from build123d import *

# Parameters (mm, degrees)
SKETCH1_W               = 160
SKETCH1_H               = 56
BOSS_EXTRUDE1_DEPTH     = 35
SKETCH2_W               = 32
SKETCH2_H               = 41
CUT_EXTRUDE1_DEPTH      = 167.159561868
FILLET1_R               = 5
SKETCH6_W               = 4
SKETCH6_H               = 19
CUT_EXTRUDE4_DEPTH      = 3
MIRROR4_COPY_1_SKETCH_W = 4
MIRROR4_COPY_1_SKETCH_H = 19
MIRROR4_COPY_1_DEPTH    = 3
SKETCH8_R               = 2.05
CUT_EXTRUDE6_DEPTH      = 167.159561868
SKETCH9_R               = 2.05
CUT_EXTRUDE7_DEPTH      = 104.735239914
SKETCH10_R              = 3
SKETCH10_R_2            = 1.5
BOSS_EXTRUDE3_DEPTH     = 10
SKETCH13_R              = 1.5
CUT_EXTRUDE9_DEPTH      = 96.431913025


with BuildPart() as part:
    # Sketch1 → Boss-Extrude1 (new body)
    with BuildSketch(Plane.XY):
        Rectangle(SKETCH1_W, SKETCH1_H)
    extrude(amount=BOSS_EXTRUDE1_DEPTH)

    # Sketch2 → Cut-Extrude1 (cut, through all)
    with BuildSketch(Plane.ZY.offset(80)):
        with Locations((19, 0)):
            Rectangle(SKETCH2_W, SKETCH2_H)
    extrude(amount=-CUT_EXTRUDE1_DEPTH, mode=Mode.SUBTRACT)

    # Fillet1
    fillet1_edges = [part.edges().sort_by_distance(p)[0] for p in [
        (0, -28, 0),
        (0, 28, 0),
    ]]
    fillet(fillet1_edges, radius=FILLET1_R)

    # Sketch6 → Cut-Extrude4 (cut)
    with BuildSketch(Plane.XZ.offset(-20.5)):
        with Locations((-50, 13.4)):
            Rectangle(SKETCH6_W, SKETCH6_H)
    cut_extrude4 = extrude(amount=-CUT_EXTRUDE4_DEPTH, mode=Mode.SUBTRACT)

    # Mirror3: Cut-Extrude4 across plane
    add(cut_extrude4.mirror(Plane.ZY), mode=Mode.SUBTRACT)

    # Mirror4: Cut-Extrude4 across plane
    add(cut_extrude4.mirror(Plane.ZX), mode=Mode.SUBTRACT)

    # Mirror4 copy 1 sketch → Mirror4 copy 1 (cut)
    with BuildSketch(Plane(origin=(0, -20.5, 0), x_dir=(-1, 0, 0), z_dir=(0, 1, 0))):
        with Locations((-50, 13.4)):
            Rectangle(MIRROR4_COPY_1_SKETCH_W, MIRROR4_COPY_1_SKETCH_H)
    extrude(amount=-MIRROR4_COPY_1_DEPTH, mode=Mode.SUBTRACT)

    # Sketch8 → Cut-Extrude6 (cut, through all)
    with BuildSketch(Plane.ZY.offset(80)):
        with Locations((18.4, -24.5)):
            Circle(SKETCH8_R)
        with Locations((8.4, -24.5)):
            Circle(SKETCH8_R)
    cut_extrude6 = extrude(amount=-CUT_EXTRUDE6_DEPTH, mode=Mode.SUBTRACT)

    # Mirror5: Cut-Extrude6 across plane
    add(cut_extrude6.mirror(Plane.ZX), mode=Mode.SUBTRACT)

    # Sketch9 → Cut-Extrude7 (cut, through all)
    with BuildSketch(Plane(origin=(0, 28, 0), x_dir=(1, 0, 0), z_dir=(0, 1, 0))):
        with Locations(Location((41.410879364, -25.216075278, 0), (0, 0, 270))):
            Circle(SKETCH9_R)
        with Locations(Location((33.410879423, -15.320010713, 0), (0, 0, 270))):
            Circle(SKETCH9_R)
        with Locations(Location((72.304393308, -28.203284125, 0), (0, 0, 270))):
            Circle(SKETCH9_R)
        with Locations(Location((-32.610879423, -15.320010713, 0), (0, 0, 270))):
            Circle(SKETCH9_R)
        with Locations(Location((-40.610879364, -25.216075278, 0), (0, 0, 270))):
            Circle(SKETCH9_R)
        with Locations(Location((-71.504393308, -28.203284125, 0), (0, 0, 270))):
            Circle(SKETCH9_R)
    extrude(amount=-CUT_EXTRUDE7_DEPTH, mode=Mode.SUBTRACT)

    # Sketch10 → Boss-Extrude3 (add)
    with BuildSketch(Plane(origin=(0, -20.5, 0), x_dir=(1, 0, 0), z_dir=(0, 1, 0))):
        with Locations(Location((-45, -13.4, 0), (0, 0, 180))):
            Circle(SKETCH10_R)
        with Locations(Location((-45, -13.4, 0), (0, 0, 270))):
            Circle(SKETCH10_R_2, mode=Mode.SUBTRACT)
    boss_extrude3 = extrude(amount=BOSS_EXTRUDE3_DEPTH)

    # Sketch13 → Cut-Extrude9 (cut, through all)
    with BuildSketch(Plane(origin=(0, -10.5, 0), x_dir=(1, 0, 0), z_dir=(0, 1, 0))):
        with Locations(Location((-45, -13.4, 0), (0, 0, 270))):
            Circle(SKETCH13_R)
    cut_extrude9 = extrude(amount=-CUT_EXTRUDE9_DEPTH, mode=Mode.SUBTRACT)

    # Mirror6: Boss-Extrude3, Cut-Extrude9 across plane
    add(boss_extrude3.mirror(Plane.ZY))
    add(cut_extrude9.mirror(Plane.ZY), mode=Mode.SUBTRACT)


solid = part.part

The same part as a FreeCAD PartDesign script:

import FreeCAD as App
import Part
import Sketcher

V = App.Vector
Q = App.Units.Quantity


def edges_at(feature, points):
    """Names of the edges that pass closest to the given points."""
    edges = feature.Shape.Edges
    near = lambda p: min(range(len(edges)), key=lambda i: edges[i].distToShape(Part.Vertex(*p))[0])
    return sorted({f"Edge{near(p) + 1}" for p in points})

doc = App.newDocument("Part")
body = doc.addObject("PartDesign::Body", "Body")

sketch1 = body.newObject("Sketcher::SketchObject", "Sketch")
sketch1.AttachmentSupport = (doc.getObject("XY_Plane"), [""])
sketch1.MapMode = "FlatFace"
sketch1.addGeometry(Part.LineSegment(V(-80, 28, 0), V(-80, -28, 0)), False)
sketch1.addGeometry(Part.LineSegment(V(-80, -28, 0), V(80, -28, 0)), False)
sketch1.addGeometry(Part.LineSegment(V(80, -28, 0), V(80, 28, 0)), False)
sketch1.addGeometry(Part.LineSegment(V(80, 28, 0), V(-80, 28, 0)), False)
sketch1.addConstraint(Sketcher.Constraint("Coincident", 0, 2, 1, 1))
sketch1.addConstraint(Sketcher.Constraint("Coincident", 1, 2, 2, 1))
sketch1.addConstraint(Sketcher.Constraint("Coincident", 2, 2, 3, 1))
sketch1.addConstraint(Sketcher.Constraint("Coincident", 3, 2, 0, 1))
sketch1.addConstraint(Sketcher.Constraint("Vertical", 0))
sketch1.addConstraint(Sketcher.Constraint("Horizontal", 1))
sketch1.addConstraint(Sketcher.Constraint("Vertical", 2))
sketch1.addConstraint(Sketcher.Constraint("Horizontal", 3))
sketch1.addConstraint(Sketcher.Constraint("Symmetric", 0, 2, 2, 2, -1, 1))
sketch1.addConstraint(Sketcher.Constraint("DistanceX", 1, 1, 1, 2, Q("160 mm")))
sketch1.addConstraint(Sketcher.Constraint("DistanceY", 0, 2, 0, 1, Q("56 mm")))
pad1 = body.newObject("PartDesign::Pad", "Pad")
pad1.Profile = sketch1
pad1.Length = 35

sketch2 = body.newObject("Sketcher::SketchObject", "Sketch001")
sketch2.AttachmentSupport = (doc.getObject("YZ_Plane"), [""])
sketch2.MapMode = "FlatFace"
sketch2.AttachmentOffset = App.Placement(V(0, 0, -80), App.Rotation())
sketch2.addGeometry(Part.LineSegment(V(20.5, 3, 0), V(-20.5, 3, 0)), False)
sketch2.addGeometry(Part.LineSegment(V(-20.5, 3, 0), V(-20.5, 35, 0)), False)
sketch2.addGeometry(Part.LineSegment(V(-20.5, 35, 0), V(20.5, 35, 0)), False)
sketch2.addGeometry(Part.LineSegment(V(20.5, 35, 0), V(20.5, 3, 0)), False)
sketch2.addConstraint(Sketcher.Constraint("Coincident", 0, 2, 1, 1))
sketch2.addConstraint(Sketcher.Constraint("Coincident", 1, 2, 2, 1))
sketch2.addConstraint(Sketcher.Constraint("Coincident", 2, 2, 3, 1))
sketch2.addConstraint(Sketcher.Constraint("Coincident", 3, 2, 0, 1))
sketch2.addConstraint(Sketcher.Constraint("Horizontal", 0))
sketch2.addConstraint(Sketcher.Constraint("Vertical", 1))
sketch2.addConstraint(Sketcher.Constraint("Horizontal", 2))
sketch2.addConstraint(Sketcher.Constraint("Vertical", 3))
sketch2.addConstraint(Sketcher.Constraint("DistanceX", 0, 2, 0, 1, Q("41 mm")))
sketch2.addConstraint(Sketcher.Constraint("DistanceY", 1, 1, 1, 2, Q("32 mm")))
sketch2.addConstraint(Sketcher.Constraint("DistanceY", -1, 1, 0, 2, Q("3 mm")))
sketch2.addConstraint(Sketcher.Constraint("DistanceX", 0, 2, -1, 1, Q("20.5 mm")))
pocket1 = body.newObject("PartDesign::Pocket", "Pocket")
pocket1.Profile = sketch2
pocket1.Type = "ThroughAll"
pocket1.Reversed = True
doc.recompute()

fillet = body.newObject("PartDesign::Fillet", "Fillet")
fillet.Base = (pocket1, edges_at(pocket1, [(0, -28, 0), (0, 28, 0)]))
fillet.Radius = 5

sketch3 = body.newObject("Sketcher::SketchObject", "Sketch002")
sketch3.AttachmentSupport = (doc.getObject("XZ_Plane"), [""])
sketch3.MapMode = "FlatFace"
sketch3.AttachmentOffset = App.Placement(V(0, 0, -20.5), App.Rotation())
sketch3.addGeometry(Part.LineSegment(V(-52, 22.9, 0), V(-52, 3.9, 0)), False)
sketch3.addGeometry(Part.LineSegment(V(-52, 3.9, 0), V(-48, 3.9, 0)), False)
sketch3.addGeometry(Part.LineSegment(V(-48, 3.9, 0), V(-48, 22.9, 0)), False)
sketch3.addGeometry(Part.LineSegment(V(-48, 22.9, 0), V(-52, 22.9, 0)), False)
sketch3.addConstraint(Sketcher.Constraint("Coincident", 0, 2, 1, 1))
sketch3.addConstraint(Sketcher.Constraint("Coincident", 1, 2, 2, 1))
sketch3.addConstraint(Sketcher.Constraint("Coincident", 2, 2, 3, 1))
sketch3.addConstraint(Sketcher.Constraint("Coincident", 3, 2, 0, 1))
sketch3.addConstraint(Sketcher.Constraint("Vertical", 0))
sketch3.addConstraint(Sketcher.Constraint("Horizontal", 1))
sketch3.addConstraint(Sketcher.Constraint("Vertical", 2))
sketch3.addConstraint(Sketcher.Constraint("Horizontal", 3))
sketch3.addConstraint(Sketcher.Constraint("DistanceX", 1, 1, 1, 2, Q("4 mm")))
sketch3.addConstraint(Sketcher.Constraint("DistanceY", 0, 2, 0, 1, Q("19 mm")))
sketch3.addConstraint(Sketcher.Constraint("DistanceX", 0, 2, -1, 1, Q("52 mm")))
sketch3.addConstraint(Sketcher.Constraint("DistanceY", -1, 1, 0, 2, Q("3.9 mm")))
pocket2 = body.newObject("PartDesign::Pocket", "Pocket001")
pocket2.Profile = sketch3
pocket2.Length = 3
doc.recompute()

mirrored = body.newObject("PartDesign::Mirrored", "Mirrored")
mirrored.Originals = [pocket2]
mirrored.MirrorPlane = (doc.getObject("YZ_Plane"), [""])
body.Tip = mirrored
doc.recompute()

mirrored2 = body.newObject("PartDesign::Mirrored", "Mirrored001")
mirrored2.Originals = [pocket2]
mirrored2.MirrorPlane = (doc.getObject("XZ_Plane"), [""])
body.Tip = mirrored2

sketch4 = body.newObject("Sketcher::SketchObject", "Sketch003")
sketch4.AttachmentSupport = (doc.getObject("XZ_Plane"), [""])
sketch4.MapMode = "FlatFace"
sketch4.AttachmentOffset = App.Placement(V(0, 0, 20.5), App.Rotation())
sketch4.addGeometry(Part.LineSegment(V(52, 22.9, 0), V(52, 3.9, 0)), False)
sketch4.addGeometry(Part.LineSegment(V(52, 3.9, 0), V(48, 3.9, 0)), False)
sketch4.addGeometry(Part.LineSegment(V(48, 3.9, 0), V(48, 22.9, 0)), False)
sketch4.addGeometry(Part.LineSegment(V(48, 22.9, 0), V(52, 22.9, 0)), False)
sketch4.addConstraint(Sketcher.Constraint("Coincident", 0, 2, 1, 1))
sketch4.addConstraint(Sketcher.Constraint("Coincident", 1, 2, 2, 1))
sketch4.addConstraint(Sketcher.Constraint("Coincident", 2, 2, 3, 1))
sketch4.addConstraint(Sketcher.Constraint("Coincident", 3, 2, 0, 1))
sketch4.addConstraint(Sketcher.Constraint("Vertical", 0))
sketch4.addConstraint(Sketcher.Constraint("Horizontal", 1))
sketch4.addConstraint(Sketcher.Constraint("Vertical", 2))
sketch4.addConstraint(Sketcher.Constraint("Horizontal", 3))
sketch4.addConstraint(Sketcher.Constraint("DistanceX", 1, 2, 1, 1, Q("4 mm")))
sketch4.addConstraint(Sketcher.Constraint("DistanceY", 0, 2, 0, 1, Q("19 mm")))
sketch4.addConstraint(Sketcher.Constraint("DistanceX", -1, 1, 0, 2, Q("52 mm")))
sketch4.addConstraint(Sketcher.Constraint("DistanceY", -1, 1, 0, 2, Q("3.9 mm")))
pocket3 = body.newObject("PartDesign::Pocket", "Pocket002")
pocket3.Profile = sketch4
pocket3.Length = 3
pocket3.Reversed = True

sketch5 = body.newObject("Sketcher::SketchObject", "Sketch004")
sketch5.AttachmentSupport = (doc.getObject("YZ_Plane"), [""])
sketch5.MapMode = "FlatFace"
sketch5.AttachmentOffset = App.Placement(V(0, 0, -80), App.Rotation())
sketch5.addGeometry(Part.Circle(V(-24.5, 18.4, 0), V(0, 0, 1), 2.05), False)
sketch5.addGeometry(Part.Circle(V(-24.5, 8.4, 0), V(0, 0, 1), 2.05), False)
sketch5.addConstraint(Sketcher.Constraint("Equal", 0, 1))
sketch5.addConstraint(Sketcher.Constraint("Vertical", 0, 3, 1, 3))
sketch5.addConstraint(Sketcher.Constraint("Diameter", 0, Q("4.1 mm")))
sketch5.addConstraint(Sketcher.Constraint("DistanceY", 1, 3, 0, 3, Q("10 mm")))
sketch5.addConstraint(Sketcher.Constraint("DistanceX", 0, 3, -1, 1, Q("24.5 mm")))
sketch5.addConstraint(Sketcher.Constraint("DistanceY", -1, 1, 0, 3, Q("18.4 mm")))
pocket4 = body.newObject("PartDesign::Pocket", "Pocket003")
pocket4.Profile = sketch5
pocket4.Type = "ThroughAll"
pocket4.Reversed = True
doc.recompute()

mirrored3 = body.newObject("PartDesign::Mirrored", "Mirrored002")
mirrored3.Originals = [pocket4]
mirrored3.MirrorPlane = (doc.getObject("XZ_Plane"), [""])
body.Tip = mirrored3

sketch6 = body.newObject("Sketcher::SketchObject", "Sketch005")
sketch6.AttachmentSupport = (doc.getObject("XZ_Plane"), [""])
sketch6.MapMode = "FlatFace"
sketch6.AttachmentOffset = App.Placement(V(0, 0, -28), App.Rotation())
sketch6.addGeometry(Part.Circle(V(41.410879, 25.216075, 0), V(0, 0, 1), 2.05), False)
sketch6.addGeometry(Part.Circle(V(33.410879, 15.320011, 0), V(0, 0, 1), 2.05), False)
sketch6.addGeometry(Part.Circle(V(72.304393, 28.203284, 0), V(0, 0, 1), 2.05), False)
sketch6.addGeometry(Part.Circle(V(-32.610879, 15.320011, 0), V(0, 0, 1), 2.05), False)
sketch6.addGeometry(Part.Circle(V(-40.610879, 25.216075, 0), V(0, 0, 1), 2.05), False)
sketch6.addGeometry(Part.Circle(V(-71.504393, 28.203284, 0), V(0, 0, 1), 2.05), False)
sketch6.addConstraint(Sketcher.Constraint("Equal", 0, 1))
sketch6.addConstraint(Sketcher.Constraint("Equal", 1, 2))
sketch6.addConstraint(Sketcher.Constraint("Equal", 2, 3))
sketch6.addConstraint(Sketcher.Constraint("Equal", 3, 4))
sketch6.addConstraint(Sketcher.Constraint("Equal", 4, 5))
sketch6.addConstraint(Sketcher.Constraint("Horizontal", 1, 3, 3, 3))
sketch6.addConstraint(Sketcher.Constraint("Horizontal", 0, 3, 4, 3))
sketch6.addConstraint(Sketcher.Constraint("Horizontal", 2, 3, 5, 3))
sketch6.addConstraint(Sketcher.Constraint("Diameter", 0, Q("4.1 mm")))
sketch6.addConstraint(Sketcher.Constraint("DistanceX", 1, 3, 0, 3, Q("8 mm")))
sketch6.addConstraint(Sketcher.Constraint("DistanceX", 4, 3, 3, 3, Q("8 mm")))
sketch6.addConstraint(Sketcher.Constraint("DistanceX", -1, 1, 0, 3, Q("41.410879 mm")))
sketch6.addConstraint(Sketcher.Constraint("DistanceY", -1, 1, 1, 3, Q("15.320011 mm")))
sketch6.addConstraint(Sketcher.Constraint("DistanceX", 3, 3, -1, 1, Q("32.610879 mm")))
sketch6.addConstraint(Sketcher.Constraint("DistanceY", 0, 3, 2, 3, Q("2.987209 mm")))
sketch6.addConstraint(Sketcher.Constraint("DistanceY", -1, 1, 0, 3, Q("25.216075 mm")))
sketch6.addConstraint(Sketcher.Constraint("DistanceX", -1, 1, 2, 3, Q("72.304393 mm")))
sketch6.addConstraint(Sketcher.Constraint("DistanceX", 5, 3, -1, 1, Q("71.504393 mm")))
pocket5 = body.newObject("PartDesign::Pocket", "Pocket004")
pocket5.Profile = sketch6
pocket5.Type = "ThroughAll"
pocket5.Reversed = True

sketch7 = body.newObject("Sketcher::SketchObject", "Sketch006")
sketch7.AttachmentSupport = (doc.getObject("XZ_Plane"), [""])
sketch7.MapMode = "FlatFace"
sketch7.AttachmentOffset = App.Placement(V(0, 0, 20.5), App.Rotation())
sketch7.addGeometry(Part.Circle(V(-45, 13.4, 0), V(0, 0, 1), 3), False)
sketch7.addGeometry(Part.Circle(V(-45, 13.4, 0), V(0, 0, 1), 1.5), False)
sketch7.addConstraint(Sketcher.Constraint("Coincident", 1, 3, 0, 3))
sketch7.addConstraint(Sketcher.Constraint("Diameter", 0, Q("6 mm")))
sketch7.addConstraint(Sketcher.Constraint("Diameter", 1, Q("3 mm")))
sketch7.addConstraint(Sketcher.Constraint("DistanceX", 0, 3, -1, 1, Q("45 mm")))
sketch7.addConstraint(Sketcher.Constraint("DistanceY", -1, 1, 0, 3, Q("13.4 mm")))
pad2 = body.newObject("PartDesign::Pad", "Pad001")
pad2.Profile = sketch7
pad2.Length = 10
pad2.Reversed = True

sketch8 = body.newObject("Sketcher::SketchObject", "Sketch007")
sketch8.AttachmentSupport = (doc.getObject("XZ_Plane"), [""])
sketch8.MapMode = "FlatFace"
sketch8.AttachmentOffset = App.Placement(V(0, 0, 10.5), App.Rotation())
sketch8.addGeometry(Part.Circle(V(-45, 13.4, 0), V(0, 0, 1), 1.5), False)
sketch8.addConstraint(Sketcher.Constraint("Diameter", 0, Q("3 mm")))
sketch8.addConstraint(Sketcher.Constraint("DistanceX", 0, 3, -1, 1, Q("45 mm")))
sketch8.addConstraint(Sketcher.Constraint("DistanceY", -1, 1, 0, 3, Q("13.4 mm")))
pocket6 = body.newObject("PartDesign::Pocket", "Pocket005")
pocket6.Profile = sketch8
pocket6.Type = "ThroughAll"
pocket6.Reversed = True
doc.recompute()

mirrored4 = body.newObject("PartDesign::Mirrored", "Mirrored003")
mirrored4.Originals = [pad2, pocket6]
mirrored4.MirrorPlane = (doc.getObject("YZ_Plane"), [""])
body.Tip = mirrored4

doc.recompute()
